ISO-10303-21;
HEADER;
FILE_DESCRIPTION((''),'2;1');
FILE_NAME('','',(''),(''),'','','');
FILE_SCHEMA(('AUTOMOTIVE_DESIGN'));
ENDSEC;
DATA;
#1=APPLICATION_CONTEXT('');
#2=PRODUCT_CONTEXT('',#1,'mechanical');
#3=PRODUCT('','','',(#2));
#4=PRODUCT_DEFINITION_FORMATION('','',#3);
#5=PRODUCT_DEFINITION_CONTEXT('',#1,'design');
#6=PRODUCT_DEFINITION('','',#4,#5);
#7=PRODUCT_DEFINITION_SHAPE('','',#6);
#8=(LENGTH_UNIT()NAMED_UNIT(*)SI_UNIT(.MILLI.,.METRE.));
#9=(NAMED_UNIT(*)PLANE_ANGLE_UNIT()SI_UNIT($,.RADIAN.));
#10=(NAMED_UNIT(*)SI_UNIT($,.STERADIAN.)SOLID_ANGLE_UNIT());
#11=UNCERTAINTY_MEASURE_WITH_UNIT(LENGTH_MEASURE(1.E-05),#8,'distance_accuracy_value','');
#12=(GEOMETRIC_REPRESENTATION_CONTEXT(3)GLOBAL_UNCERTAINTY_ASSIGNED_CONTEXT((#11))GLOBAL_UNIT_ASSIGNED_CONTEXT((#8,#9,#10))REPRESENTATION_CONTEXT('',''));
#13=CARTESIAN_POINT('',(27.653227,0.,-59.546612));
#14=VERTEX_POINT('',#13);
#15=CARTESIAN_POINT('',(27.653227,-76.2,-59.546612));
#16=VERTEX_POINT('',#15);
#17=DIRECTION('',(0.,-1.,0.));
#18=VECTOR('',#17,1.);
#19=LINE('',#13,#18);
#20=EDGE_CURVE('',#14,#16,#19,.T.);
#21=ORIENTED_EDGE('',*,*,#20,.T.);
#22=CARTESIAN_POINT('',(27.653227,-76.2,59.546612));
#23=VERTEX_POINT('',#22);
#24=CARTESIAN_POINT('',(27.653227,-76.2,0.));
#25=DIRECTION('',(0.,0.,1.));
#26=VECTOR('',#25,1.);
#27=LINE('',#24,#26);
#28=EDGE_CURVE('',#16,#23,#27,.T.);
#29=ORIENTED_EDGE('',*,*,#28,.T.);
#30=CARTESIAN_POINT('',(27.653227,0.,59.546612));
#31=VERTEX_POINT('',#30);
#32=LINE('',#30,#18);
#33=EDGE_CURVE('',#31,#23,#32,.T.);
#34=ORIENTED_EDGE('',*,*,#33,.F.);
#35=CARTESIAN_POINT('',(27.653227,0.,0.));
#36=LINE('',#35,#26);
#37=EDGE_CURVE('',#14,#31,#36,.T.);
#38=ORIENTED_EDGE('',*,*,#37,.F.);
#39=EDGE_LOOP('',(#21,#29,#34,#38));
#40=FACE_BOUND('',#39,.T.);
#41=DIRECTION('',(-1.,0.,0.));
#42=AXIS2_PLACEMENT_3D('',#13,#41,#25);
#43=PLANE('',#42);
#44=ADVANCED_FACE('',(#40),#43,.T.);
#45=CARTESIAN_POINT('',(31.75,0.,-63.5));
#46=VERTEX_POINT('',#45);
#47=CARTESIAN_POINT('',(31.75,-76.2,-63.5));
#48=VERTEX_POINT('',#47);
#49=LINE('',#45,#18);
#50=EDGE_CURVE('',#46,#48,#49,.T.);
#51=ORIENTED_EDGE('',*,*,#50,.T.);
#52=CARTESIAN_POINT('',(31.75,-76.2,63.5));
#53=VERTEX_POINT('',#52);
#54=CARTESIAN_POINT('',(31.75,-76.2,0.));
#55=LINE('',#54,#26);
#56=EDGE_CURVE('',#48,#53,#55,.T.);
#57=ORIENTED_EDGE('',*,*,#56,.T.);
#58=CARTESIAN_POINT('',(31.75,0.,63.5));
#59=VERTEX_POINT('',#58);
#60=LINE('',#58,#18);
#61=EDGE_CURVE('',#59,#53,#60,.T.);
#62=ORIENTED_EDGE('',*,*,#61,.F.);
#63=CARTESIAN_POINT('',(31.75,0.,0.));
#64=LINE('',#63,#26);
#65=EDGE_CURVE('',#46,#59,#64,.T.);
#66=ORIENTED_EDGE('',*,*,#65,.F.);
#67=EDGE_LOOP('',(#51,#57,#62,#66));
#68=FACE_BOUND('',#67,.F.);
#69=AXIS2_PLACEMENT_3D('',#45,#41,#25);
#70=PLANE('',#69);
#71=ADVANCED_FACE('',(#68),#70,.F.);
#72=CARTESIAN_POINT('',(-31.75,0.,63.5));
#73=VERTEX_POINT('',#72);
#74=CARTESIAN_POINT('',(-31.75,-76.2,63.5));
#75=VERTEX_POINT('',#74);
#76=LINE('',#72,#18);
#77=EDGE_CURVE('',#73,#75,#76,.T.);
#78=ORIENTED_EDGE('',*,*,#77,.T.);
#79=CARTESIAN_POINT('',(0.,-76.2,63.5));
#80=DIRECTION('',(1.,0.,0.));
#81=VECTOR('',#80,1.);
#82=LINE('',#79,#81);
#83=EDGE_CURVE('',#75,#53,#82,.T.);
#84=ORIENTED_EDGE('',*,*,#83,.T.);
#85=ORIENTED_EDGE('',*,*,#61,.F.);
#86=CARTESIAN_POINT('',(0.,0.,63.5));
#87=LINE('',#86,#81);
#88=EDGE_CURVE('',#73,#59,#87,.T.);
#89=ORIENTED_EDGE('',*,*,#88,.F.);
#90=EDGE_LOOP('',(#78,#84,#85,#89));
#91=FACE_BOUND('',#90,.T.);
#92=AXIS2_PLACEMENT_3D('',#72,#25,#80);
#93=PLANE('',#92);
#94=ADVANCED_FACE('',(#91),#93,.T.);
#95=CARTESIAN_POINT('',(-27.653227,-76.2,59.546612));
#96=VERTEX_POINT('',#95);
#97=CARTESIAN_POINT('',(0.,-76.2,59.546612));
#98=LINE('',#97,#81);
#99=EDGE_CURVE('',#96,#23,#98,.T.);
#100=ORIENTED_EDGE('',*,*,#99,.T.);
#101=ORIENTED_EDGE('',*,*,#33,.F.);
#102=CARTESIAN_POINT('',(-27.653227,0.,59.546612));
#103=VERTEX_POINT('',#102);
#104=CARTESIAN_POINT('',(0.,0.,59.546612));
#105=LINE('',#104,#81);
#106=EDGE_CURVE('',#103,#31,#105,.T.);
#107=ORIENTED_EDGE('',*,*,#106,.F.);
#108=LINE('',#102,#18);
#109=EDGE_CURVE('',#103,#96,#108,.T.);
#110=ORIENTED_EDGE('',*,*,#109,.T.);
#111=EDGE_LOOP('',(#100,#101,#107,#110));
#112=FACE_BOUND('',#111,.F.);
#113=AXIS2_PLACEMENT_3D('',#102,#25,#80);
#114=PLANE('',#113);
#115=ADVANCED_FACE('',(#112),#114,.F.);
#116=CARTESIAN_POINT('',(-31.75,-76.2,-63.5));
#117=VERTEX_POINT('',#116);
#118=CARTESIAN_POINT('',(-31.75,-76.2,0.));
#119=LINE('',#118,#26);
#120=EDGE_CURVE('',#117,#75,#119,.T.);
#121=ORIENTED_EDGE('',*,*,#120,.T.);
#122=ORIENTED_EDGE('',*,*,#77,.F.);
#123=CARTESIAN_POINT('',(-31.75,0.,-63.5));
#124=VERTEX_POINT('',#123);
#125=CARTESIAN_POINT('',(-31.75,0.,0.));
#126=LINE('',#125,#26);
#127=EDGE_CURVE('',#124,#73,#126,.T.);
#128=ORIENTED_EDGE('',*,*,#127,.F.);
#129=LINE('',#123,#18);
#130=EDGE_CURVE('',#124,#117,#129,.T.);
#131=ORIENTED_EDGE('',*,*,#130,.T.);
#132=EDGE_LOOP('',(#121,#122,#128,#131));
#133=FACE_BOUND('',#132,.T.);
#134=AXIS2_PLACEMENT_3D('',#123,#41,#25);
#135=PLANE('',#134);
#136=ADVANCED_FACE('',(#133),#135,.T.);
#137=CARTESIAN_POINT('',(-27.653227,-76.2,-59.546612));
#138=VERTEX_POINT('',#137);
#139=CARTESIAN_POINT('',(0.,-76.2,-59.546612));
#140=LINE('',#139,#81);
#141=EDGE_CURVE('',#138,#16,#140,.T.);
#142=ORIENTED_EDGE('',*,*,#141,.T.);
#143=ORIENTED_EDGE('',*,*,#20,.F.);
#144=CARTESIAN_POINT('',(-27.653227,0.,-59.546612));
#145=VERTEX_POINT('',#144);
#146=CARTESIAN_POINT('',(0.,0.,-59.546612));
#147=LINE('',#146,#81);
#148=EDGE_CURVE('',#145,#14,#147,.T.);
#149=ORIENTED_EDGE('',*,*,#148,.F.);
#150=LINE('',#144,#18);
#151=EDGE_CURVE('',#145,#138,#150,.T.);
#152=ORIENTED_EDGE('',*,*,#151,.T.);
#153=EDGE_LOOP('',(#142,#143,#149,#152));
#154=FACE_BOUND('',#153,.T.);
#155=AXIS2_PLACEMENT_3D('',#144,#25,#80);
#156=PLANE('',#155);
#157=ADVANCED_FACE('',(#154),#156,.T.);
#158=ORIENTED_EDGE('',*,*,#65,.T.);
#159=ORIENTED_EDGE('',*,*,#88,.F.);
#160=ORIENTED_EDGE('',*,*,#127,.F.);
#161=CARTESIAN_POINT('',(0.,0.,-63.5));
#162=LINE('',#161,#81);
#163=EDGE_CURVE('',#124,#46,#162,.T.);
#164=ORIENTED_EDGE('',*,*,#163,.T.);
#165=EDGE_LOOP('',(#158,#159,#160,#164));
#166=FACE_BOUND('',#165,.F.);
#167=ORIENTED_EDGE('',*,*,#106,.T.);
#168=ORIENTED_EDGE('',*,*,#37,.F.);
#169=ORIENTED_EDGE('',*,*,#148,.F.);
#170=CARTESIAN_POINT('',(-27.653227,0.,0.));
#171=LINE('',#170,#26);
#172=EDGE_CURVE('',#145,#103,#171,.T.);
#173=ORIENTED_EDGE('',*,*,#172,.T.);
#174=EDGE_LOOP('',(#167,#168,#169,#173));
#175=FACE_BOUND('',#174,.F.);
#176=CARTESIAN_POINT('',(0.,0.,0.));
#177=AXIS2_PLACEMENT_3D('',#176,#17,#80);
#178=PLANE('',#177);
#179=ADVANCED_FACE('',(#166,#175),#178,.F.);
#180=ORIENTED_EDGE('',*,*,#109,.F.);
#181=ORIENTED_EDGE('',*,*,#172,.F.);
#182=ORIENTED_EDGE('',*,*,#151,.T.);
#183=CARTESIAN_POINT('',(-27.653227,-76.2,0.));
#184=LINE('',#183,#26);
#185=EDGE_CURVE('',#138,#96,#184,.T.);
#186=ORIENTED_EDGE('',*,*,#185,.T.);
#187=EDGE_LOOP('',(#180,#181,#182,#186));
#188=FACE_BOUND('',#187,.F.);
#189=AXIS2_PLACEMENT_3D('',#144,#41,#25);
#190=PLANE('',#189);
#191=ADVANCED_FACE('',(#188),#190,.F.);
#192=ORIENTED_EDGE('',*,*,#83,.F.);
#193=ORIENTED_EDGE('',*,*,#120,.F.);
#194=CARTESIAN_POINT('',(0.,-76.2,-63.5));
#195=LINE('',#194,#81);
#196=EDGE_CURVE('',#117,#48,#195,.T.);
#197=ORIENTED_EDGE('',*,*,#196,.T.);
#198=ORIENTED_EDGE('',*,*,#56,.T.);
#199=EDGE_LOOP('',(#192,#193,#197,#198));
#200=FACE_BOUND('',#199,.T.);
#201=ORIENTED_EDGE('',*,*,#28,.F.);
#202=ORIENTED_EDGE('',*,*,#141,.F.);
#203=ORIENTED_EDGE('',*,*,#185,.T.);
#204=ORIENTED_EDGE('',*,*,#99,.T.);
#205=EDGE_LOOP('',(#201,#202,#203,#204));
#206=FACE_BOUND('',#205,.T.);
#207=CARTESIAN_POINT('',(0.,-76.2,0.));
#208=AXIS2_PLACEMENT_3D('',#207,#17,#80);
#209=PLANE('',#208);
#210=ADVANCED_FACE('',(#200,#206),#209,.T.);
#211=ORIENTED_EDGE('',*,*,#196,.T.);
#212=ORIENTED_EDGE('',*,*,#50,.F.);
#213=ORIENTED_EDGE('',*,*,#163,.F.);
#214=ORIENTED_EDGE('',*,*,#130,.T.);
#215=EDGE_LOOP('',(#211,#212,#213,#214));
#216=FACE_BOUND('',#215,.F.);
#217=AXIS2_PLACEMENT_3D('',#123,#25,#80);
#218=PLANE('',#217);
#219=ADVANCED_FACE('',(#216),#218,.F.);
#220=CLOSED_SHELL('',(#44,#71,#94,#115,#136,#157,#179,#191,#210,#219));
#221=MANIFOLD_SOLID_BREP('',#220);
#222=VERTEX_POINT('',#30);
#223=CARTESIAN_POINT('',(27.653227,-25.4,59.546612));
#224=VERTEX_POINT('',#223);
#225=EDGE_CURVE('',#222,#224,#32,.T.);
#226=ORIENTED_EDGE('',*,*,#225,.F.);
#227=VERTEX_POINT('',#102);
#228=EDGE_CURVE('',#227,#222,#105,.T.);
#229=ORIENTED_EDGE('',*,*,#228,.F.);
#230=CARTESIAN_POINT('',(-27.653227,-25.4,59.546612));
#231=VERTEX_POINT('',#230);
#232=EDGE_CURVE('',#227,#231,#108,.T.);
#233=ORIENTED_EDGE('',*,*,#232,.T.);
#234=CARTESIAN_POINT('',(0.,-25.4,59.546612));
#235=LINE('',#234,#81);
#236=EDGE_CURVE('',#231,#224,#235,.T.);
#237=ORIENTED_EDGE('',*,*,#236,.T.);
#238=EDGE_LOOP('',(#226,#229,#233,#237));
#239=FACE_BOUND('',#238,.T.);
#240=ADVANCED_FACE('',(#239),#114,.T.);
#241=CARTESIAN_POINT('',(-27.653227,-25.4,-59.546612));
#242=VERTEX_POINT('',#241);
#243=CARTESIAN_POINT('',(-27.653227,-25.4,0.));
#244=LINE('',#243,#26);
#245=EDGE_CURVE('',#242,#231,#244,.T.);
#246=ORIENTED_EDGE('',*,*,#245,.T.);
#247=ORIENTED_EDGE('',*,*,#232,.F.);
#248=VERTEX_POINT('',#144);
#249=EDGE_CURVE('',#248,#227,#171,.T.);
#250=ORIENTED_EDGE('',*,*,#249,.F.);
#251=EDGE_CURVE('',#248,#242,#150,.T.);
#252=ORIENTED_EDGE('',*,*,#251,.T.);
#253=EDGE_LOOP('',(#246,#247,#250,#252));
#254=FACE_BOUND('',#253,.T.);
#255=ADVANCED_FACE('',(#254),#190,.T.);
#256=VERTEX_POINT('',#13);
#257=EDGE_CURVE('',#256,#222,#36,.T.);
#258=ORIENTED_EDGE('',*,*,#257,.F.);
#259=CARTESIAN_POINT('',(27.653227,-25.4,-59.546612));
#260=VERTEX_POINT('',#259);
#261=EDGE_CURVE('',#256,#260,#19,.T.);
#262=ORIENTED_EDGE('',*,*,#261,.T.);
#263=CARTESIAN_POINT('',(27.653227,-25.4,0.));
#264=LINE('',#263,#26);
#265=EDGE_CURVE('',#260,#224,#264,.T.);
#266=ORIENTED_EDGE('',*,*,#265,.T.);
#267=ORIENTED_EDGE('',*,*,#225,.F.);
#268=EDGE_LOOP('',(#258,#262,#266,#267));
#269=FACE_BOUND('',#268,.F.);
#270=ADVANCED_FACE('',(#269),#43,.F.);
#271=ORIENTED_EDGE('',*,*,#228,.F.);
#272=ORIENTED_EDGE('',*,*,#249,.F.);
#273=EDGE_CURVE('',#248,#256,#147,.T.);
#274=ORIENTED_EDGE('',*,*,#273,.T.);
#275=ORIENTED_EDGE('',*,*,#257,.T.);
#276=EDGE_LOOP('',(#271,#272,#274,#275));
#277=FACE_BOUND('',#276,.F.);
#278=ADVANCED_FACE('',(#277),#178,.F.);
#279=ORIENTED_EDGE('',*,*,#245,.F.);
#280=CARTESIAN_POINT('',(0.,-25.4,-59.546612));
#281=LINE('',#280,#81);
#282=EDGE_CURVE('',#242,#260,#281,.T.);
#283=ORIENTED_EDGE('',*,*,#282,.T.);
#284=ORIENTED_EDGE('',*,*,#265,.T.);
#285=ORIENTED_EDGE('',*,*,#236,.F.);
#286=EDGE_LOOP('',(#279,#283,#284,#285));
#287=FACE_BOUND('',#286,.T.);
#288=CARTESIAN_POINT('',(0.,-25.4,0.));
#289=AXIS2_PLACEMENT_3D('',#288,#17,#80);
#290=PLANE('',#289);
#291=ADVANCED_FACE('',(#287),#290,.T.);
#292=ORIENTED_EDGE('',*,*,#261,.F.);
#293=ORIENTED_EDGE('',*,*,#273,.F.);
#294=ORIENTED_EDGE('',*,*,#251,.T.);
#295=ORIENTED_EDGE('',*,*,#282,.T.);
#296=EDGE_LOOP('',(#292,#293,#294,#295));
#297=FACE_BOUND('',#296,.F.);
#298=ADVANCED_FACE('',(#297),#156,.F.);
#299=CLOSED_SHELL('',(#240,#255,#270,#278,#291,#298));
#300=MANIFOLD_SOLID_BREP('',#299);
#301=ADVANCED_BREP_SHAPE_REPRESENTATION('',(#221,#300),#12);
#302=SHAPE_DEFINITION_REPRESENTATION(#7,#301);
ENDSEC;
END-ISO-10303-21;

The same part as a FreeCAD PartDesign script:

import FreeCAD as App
import Part
import Sketcher
from FreeCAD import Vector
Q = App.Units.Quantity

doc = App.newDocument("Part")
body = doc.addObject("PartDesign::Body", "Body")

# Sketch on XZ plane
sketch1 = body.newObject("Sketcher::SketchObject", "Sketch")
sketch1.AttachmentSupport = (doc.getObject("XZ_Plane"), [""])
sketch1.MapMode = "FlatFace"
sketch1.addGeometry(Part.LineSegment(Vector(-32, 64, 0), Vector(-32, -64, 0)), False)
sketch1.addGeometry(Part.LineSegment(Vector(-32, -64, 0), Vector(32, -64, 0)), False)
sketch1.addGeometry(Part.LineSegment(Vector(32, -64, 0), Vector(32, 64, 0)), False)
sketch1.addGeometry(Part.LineSegment(Vector(32, 64, 0), Vector(-32, 64, 0)), False)
sketch1.addGeometry(Part.LineSegment(Vector(28, -60, 0), Vector(-28, -60, 0)), False)
sketch1.addGeometry(Part.LineSegment(Vector(-28, -60, 0), Vector(-28, 60, 0)), False)
sketch1.addGeometry(Part.LineSegment(Vector(-28, 60, 0), Vector(28, 60, 0)), False)
sketch1.addGeometry(Part.LineSegment(Vector(28, 60, 0), Vector(28, -60, 0)), False)
sketch1.addConstraint(Sketcher.Constraint("Coincident", 0, 2, 1, 1))
sketch1.addConstraint(Sketcher.Constraint("Coincident", 1, 2, 2, 1))
sketch1.addConstraint(Sketcher.Constraint("Coincident", 2, 2, 3, 1))
sketch1.addConstraint(Sketcher.Constraint("Coincident", 3, 2, 0, 1))
sketch1.addConstraint(Sketcher.Constraint("Coincident", 4, 2, 5, 1))
sketch1.addConstraint(Sketcher.Constraint("Coincident", 5, 2, 6, 1))
sketch1.addConstraint(Sketcher.Constraint("Coincident", 6, 2, 7, 1))
sketch1.addConstraint(Sketcher.Constraint("Coincident", 7, 2, 4, 1))
sketch1.addConstraint(Sketcher.Constraint("Vertical", 0))
sketch1.addConstraint(Sketcher.Constraint("Horizontal", 1))
sketch1.addConstraint(Sketcher.Constraint("Vertical", 2))
sketch1.addConstraint(Sketcher.Constraint("Horizontal", 3))
sketch1.addConstraint(Sketcher.Constraint("Horizontal", 4))
sketch1.addConstraint(Sketcher.Constraint("Vertical", 5))
sketch1.addConstraint(Sketcher.Constraint("Horizontal", 6))
sketch1.addConstraint(Sketcher.Constraint("Vertical", 7))
sketch1.addConstraint(Sketcher.Constraint("Symmetric", 0, 2, 2, 2, -1, 1))
sketch1.addConstraint(Sketcher.Constraint("Symmetric", 4, 2, 6, 2, -1, 1))
sketch1.addConstraint(Sketcher.Constraint("DistanceY", 0, 2, 0, 1, Q("5 in")))
sketch1.addConstraint(Sketcher.Constraint("DistanceX", 1, 1, 1, 2, Q("2.5 in")))
sketch1.addConstraint(Sketcher.Constraint("DistanceX", 4, 2, 4, 1, Q("55.306454 mm")))
sketch1.addConstraint(Sketcher.Constraint("DistanceY", 5, 1, 5, 2, Q("119.093224 mm")))
pad1 = body.newObject("PartDesign::Pad", "Pad")
pad1.Profile = sketch1
pad1.Length = Q("3 in")
body2 = doc.addObject("PartDesign::Body", "Body001")

# Sketch on XZ plane
sketch2 = body2.newObject("Sketcher::SketchObject", "Sketch001")
sketch2.AttachmentSupport = (doc.getObject("XZ_Plane001"), [""])
sketch2.MapMode = "FlatFace"
sketch2.addGeometry(Part.LineSegment(Vector(-28, 60, 0), Vector(-28, -60, 0)), False)
sketch2.addGeometry(Part.LineSegment(Vector(-28, -60, 0), Vector(28, -60, 0)), False)
sketch2.addGeometry(Part.LineSegment(Vector(28, -60, 0), Vector(28, 60, 0)), False)
sketch2.addGeometry(Part.LineSegment(Vector(28, 60, 0), Vector(-28, 60, 0)), False)
sketch2.addConstraint(Sketcher.Constraint("Coincident", 0, 2, 1, 1))
sketch2.addConstraint(Sketcher.Constraint("Coincident", 1, 2, 2, 1))
sketch2.addConstraint(Sketcher.Constraint("Coincident", 2, 2, 3, 1))
sketch2.addConstraint(Sketcher.Constraint("Coincident", 3, 2, 0, 1))
sketch2.addConstraint(Sketcher.Constraint("Vertical", 0))
sketch2.addConstraint(Sketcher.Constraint("Horizontal", 1))
sketch2.addConstraint(Sketcher.Constraint("Vertical", 2))
sketch2.addConstraint(Sketcher.Constraint("Horizontal", 3))
sketch2.addConstraint(Sketcher.Constraint("Symmetric", 0, 2, 2, 2, -1, 1))
sketch2.addConstraint(Sketcher.Constraint("DistanceX", 1, 1, 1, 2, Q("55.306454 mm")))
sketch2.addConstraint(Sketcher.Constraint("DistanceY", 0, 2, 0, 1, Q("119.093224 mm")))
pad2 = body2.newObject("PartDesign::Pad", "Pad001")
pad2.Profile = sketch2
pad2.Length = Q("1 in")

doc.recompute()
